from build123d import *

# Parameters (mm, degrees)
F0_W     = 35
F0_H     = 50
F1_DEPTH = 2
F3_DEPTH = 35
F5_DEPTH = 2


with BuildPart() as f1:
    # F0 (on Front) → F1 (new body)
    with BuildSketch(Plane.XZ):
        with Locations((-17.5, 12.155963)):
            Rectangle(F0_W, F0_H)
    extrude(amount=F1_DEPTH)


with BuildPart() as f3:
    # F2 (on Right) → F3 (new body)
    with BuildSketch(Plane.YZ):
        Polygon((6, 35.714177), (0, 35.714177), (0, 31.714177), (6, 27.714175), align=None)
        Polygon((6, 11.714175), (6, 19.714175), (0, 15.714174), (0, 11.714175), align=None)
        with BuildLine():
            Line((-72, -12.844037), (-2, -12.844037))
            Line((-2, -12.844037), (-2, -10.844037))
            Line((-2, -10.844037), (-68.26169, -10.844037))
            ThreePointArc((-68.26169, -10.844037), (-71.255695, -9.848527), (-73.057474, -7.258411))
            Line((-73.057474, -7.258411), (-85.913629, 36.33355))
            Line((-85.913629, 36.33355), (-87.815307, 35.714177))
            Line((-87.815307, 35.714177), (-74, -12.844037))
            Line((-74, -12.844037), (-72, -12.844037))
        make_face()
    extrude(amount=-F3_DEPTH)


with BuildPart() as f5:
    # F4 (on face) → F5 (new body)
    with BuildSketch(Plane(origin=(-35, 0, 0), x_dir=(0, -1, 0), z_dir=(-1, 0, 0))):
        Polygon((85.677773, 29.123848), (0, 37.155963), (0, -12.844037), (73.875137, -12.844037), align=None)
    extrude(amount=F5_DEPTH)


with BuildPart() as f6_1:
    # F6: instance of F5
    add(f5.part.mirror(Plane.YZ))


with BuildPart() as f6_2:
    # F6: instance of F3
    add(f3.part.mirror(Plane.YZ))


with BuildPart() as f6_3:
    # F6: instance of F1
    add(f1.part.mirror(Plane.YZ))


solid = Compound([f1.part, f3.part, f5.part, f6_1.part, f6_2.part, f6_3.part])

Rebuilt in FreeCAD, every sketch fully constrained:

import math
import FreeCAD as App
import Part
import Sketcher
Q = App.Units.Quantity


def add_polygon(sketch, points):
    """Adds a closed chain of lines whose ends are joined by coincident constraints."""
    first, n = sketch.GeometryCount, len(points)
    for a, b in zip(points, points[1:] + points[:1]):
        sketch.addGeometry(Part.LineSegment(App.Vector(*a, 0), App.Vector(*b, 0)), False)
    for i in range(n):
        sketch.addConstraint(Sketcher.Constraint("Coincident", first + i, 2, first + (i + 1) % n, 1))

doc = App.newDocument("Part")
body = doc.addObject("PartDesign::Body", "Body")

# Sketch on XZ plane
sketch1 = body.newObject("Sketcher::SketchObject", "Sketch")
sketch1.AttachmentSupport = (doc.getObject("XZ_Plane"), [""])
sketch1.MapMode = "FlatFace"
add_polygon(sketch1, [(-35, 37), (-35, -13), (0, -13), (0, 37)])  # lines 0-3
sketch1.addConstraint([
    Sketcher.Constraint("Vertical", 0),
    Sketcher.Constraint("Horizontal", 1),
    Sketcher.Constraint("Vertical", 2),
    Sketcher.Constraint("Horizontal", 3),
    Sketcher.Constraint("PointOnObject", 1, 2, -2),
    Sketcher.Constraint("DistanceX", 1, 1, 1, 2, Q("35 mm")),
    Sketcher.Constraint("DistanceY", 0, 2, 0, 1, Q("50 mm")),
    Sketcher.Constraint("DistanceY", 0, 2, -1, 1, Q("12.844037 mm")),
])
pad1 = body.newObject("PartDesign::Pad", "Pad")
pad1.Profile = sketch1
pad1.Length = 2
body2 = doc.addObject("PartDesign::Body", "Body001")
body2.AllowCompound = True

# Sketch on YZ plane
sketch2 = body2.newObject("Sketcher::SketchObject", "Sketch001")
sketch2.AttachmentSupport = (doc.getObject("YZ_Plane001"), [""])
sketch2.MapMode = "FlatFace"
add_polygon(sketch2, [(6, 35.714177), (0, 35.714177), (0, 31.714177), (6, 27.714175)])  # lines 0-3
add_polygon(sketch2, [(6, 11.714175), (6, 19.714175), (0, 15.714174), (0, 11.714175)])  # lines 4-7
sketch2.addGeometry(Part.LineSegment(App.Vector(-2, -12.844037, 0), App.Vector(-2, -10.844037, 0)), False)  # 8
sketch2.addGeometry(Part.LineSegment(App.Vector(-2, -10.844037, 0), App.Vector(-68.26169, -10.844037, 0)), False)  # 9
sketch2.addGeometry(Part.ArcOfCircle(Part.Circle(App.Vector(-68.261692, -5.84404, 0), App.Vector(0, 0, 1), 4.999997), math.radians(-163.568168), math.radians(-89.999977)), False)  # 10
sketch2.addGeometry(Part.LineSegment(App.Vector(-73.057474, -7.258411, 0), App.Vector(-85.913629, 36.33355, 0)), False)  # 11
sketch2.addGeometry(Part.LineSegment(App.Vector(-85.913629, 36.33355, 0), App.Vector(-87.815307, 35.714177, 0)), False)  # 12
sketch2.addGeometry(Part.LineSegment(App.Vector(-87.815307, 35.714177, 0), App.Vector(-74, -12.844037, 0)), False)  # 13
sketch2.addGeometry(Part.LineSegment(App.Vector(-74, -12.844037, 0), App.Vector(-2, -12.844037, 0)), False)  # 14
sketch2.addConstraint([
    Sketcher.Constraint("Coincident", 8, 2, 9, 1),
    Sketcher.Constraint("Tangent", 9, 2, 10, 2),
    Sketcher.Constraint("Tangent", 10, 1, 11, 1),
    Sketcher.Constraint("Coincident", 11, 2, 12, 1),
    Sketcher.Constraint("Coincident", 12, 2, 13, 1),
    Sketcher.Constraint("Coincident", 13, 2, 14, 1),
    Sketcher.Constraint("Coincident", 14, 2, 8, 1),
    Sketcher.Constraint("Horizontal", 0),
    Sketcher.Constraint("Vertical", 1),
    Sketcher.Constraint("Vertical", 3),
    Sketcher.Constraint("Vertical", 4),
    Sketcher.Constraint("Vertical", 6),
    Sketcher.Constraint("Horizontal", 7),
    Sketcher.Constraint("Vertical", 8),
    Sketcher.Constraint("Horizontal", 9),
    Sketcher.Constraint("Horizontal", 14),
    Sketcher.Constraint("PointOnObject", 0, 2, -2),
    Sketcher.Constraint("PointOnObject", 5, 2, -2),
    Sketcher.Constraint("Horizontal", 3, 2, 12, 2),
    Sketcher.Constraint("Vertical", 3, 2, 4, 2),
    Sketcher.Constraint("Equal", 3, 4),
    Sketcher.Constraint("Equal", 1, 6),
    Sketcher.Constraint("DistanceX", 0, 2, 0, 1, Q("6 mm")),
    Sketcher.Constraint("DistanceX", 14, 1, 14, 2, Q("72 mm")),
    Sketcher.Constraint("DistanceY", 1, 2, 1, 1, Q("4 mm")),
    Sketcher.Constraint("DistanceY", 3, 1, 3, 2, Q("8.000002 mm")),
    Sketcher.Constraint("DistanceY", 8, 1, 8, 2, Q("2 mm")),
    Sketcher.Constraint("Distance", 12, Q("2.000001 mm")),
    Sketcher.Constraint("DistanceX", 8, 2, -1, 1, Q("2 mm")),
    Sketcher.Constraint("DistanceY", 4, 2, 2, 2, Q("8 mm")),
    Sketcher.Constraint("Radius", 10, Q("4.999997 mm")),
    Sketcher.Constraint("DistanceX", 9, 2, 9, 1, Q("66.26169 mm")),
    Sketcher.Constraint("Distance", 11, Q("45.44821 mm")),
    Sketcher.Constraint("DistanceY", 10, 3, -1, 1, Q("5.84404 mm")),
    Sketcher.Constraint("DistanceY", 10, 1, -1, 1, Q("7.258411 mm")),
    Sketcher.Constraint("DistanceY", 8, 2, 6, 2, Q("22.558212 mm")),
])
pad2 = body2.newObject("PartDesign::Pad", "Pad001")
pad2.Profile = sketch2
pad2.Length = 35
pad2.Reversed = True
body3 = doc.addObject("PartDesign::Body", "Body002")

# Sketch on YZ plane
sketch3 = body3.newObject("Sketcher::SketchObject", "Sketch002")
sketch3.AttachmentSupport = (doc.getObject("YZ_Plane002"), [""])
sketch3.MapMode = "FlatFace"
sketch3.AttachmentOffset = App.Placement(App.Vector(0, 0, -35), App.Rotation())
add_polygon(sketch3, [(-86, 29), (0, 37), (0, -13), (-74, -13)])  # lines 0-3
sketch3.addConstraint([
    Sketcher.Constraint("Vertical", 1),
    Sketcher.Constraint("Horizontal", 2),
    Sketcher.Constraint("PointOnObject", 0, 2, -2),
    Sketcher.Constraint("DistanceY", 1, 2, 1, 1, Q("50 mm")),
    Sketcher.Constraint("DistanceX", 2, 2, 2, 1, Q("73.875137 mm")),
    Sketcher.Constraint("Distance", 0, Q("86.053447 mm")),
    Sketcher.Constraint("Distance", 3, Q("43.595935 mm")),
    Sketcher.Constraint("DistanceY", -1, 1, 0, 2, Q("37.155963 mm")),
])
pad3 = body3.newObject("PartDesign::Pad", "Pad002")
pad3.Profile = sketch3
pad3.Length = 2
pad3.Reversed = True
body4 = doc.addObject("PartDesign::Body", "Body003")
doc.recompute()

mirroring = doc.addObject("Part::Mirroring", "Mirroring")
mirroring.Source = body3
mirroring.Base = App.Vector(0, 0, 0)
mirroring.Normal = App.Vector(1, 0, 0)
body4.BaseFeature = mirroring
doc.recompute()
body5 = doc.addObject("PartDesign::Body", "Body004")
body5.AllowCompound = True
doc.recompute()

mirroring2 = doc.addObject("Part::Mirroring", "Mirroring001")
mirroring2.Source = body2
mirroring2.Base = App.Vector(0, 0, 0)
mirroring2.Normal = App.Vector(1, 0, 0)
body5.BaseFeature = mirroring2
doc.recompute()
body6 = doc.addObject("PartDesign::Body", "Body005")
doc.recompute()

mirroring3 = doc.addObject("Part::Mirroring", "Mirroring002")
mirroring3.Source = body
mirroring3.Base = App.Vector(0, 0, 0)
mirroring3.Normal = App.Vector(1, 0, 0)
body6.BaseFeature = mirroring3
doc.recompute()
mirroring.Visibility = False
mirroring2.Visibility = False
mirroring3.Visibility = False

doc.recompute()
